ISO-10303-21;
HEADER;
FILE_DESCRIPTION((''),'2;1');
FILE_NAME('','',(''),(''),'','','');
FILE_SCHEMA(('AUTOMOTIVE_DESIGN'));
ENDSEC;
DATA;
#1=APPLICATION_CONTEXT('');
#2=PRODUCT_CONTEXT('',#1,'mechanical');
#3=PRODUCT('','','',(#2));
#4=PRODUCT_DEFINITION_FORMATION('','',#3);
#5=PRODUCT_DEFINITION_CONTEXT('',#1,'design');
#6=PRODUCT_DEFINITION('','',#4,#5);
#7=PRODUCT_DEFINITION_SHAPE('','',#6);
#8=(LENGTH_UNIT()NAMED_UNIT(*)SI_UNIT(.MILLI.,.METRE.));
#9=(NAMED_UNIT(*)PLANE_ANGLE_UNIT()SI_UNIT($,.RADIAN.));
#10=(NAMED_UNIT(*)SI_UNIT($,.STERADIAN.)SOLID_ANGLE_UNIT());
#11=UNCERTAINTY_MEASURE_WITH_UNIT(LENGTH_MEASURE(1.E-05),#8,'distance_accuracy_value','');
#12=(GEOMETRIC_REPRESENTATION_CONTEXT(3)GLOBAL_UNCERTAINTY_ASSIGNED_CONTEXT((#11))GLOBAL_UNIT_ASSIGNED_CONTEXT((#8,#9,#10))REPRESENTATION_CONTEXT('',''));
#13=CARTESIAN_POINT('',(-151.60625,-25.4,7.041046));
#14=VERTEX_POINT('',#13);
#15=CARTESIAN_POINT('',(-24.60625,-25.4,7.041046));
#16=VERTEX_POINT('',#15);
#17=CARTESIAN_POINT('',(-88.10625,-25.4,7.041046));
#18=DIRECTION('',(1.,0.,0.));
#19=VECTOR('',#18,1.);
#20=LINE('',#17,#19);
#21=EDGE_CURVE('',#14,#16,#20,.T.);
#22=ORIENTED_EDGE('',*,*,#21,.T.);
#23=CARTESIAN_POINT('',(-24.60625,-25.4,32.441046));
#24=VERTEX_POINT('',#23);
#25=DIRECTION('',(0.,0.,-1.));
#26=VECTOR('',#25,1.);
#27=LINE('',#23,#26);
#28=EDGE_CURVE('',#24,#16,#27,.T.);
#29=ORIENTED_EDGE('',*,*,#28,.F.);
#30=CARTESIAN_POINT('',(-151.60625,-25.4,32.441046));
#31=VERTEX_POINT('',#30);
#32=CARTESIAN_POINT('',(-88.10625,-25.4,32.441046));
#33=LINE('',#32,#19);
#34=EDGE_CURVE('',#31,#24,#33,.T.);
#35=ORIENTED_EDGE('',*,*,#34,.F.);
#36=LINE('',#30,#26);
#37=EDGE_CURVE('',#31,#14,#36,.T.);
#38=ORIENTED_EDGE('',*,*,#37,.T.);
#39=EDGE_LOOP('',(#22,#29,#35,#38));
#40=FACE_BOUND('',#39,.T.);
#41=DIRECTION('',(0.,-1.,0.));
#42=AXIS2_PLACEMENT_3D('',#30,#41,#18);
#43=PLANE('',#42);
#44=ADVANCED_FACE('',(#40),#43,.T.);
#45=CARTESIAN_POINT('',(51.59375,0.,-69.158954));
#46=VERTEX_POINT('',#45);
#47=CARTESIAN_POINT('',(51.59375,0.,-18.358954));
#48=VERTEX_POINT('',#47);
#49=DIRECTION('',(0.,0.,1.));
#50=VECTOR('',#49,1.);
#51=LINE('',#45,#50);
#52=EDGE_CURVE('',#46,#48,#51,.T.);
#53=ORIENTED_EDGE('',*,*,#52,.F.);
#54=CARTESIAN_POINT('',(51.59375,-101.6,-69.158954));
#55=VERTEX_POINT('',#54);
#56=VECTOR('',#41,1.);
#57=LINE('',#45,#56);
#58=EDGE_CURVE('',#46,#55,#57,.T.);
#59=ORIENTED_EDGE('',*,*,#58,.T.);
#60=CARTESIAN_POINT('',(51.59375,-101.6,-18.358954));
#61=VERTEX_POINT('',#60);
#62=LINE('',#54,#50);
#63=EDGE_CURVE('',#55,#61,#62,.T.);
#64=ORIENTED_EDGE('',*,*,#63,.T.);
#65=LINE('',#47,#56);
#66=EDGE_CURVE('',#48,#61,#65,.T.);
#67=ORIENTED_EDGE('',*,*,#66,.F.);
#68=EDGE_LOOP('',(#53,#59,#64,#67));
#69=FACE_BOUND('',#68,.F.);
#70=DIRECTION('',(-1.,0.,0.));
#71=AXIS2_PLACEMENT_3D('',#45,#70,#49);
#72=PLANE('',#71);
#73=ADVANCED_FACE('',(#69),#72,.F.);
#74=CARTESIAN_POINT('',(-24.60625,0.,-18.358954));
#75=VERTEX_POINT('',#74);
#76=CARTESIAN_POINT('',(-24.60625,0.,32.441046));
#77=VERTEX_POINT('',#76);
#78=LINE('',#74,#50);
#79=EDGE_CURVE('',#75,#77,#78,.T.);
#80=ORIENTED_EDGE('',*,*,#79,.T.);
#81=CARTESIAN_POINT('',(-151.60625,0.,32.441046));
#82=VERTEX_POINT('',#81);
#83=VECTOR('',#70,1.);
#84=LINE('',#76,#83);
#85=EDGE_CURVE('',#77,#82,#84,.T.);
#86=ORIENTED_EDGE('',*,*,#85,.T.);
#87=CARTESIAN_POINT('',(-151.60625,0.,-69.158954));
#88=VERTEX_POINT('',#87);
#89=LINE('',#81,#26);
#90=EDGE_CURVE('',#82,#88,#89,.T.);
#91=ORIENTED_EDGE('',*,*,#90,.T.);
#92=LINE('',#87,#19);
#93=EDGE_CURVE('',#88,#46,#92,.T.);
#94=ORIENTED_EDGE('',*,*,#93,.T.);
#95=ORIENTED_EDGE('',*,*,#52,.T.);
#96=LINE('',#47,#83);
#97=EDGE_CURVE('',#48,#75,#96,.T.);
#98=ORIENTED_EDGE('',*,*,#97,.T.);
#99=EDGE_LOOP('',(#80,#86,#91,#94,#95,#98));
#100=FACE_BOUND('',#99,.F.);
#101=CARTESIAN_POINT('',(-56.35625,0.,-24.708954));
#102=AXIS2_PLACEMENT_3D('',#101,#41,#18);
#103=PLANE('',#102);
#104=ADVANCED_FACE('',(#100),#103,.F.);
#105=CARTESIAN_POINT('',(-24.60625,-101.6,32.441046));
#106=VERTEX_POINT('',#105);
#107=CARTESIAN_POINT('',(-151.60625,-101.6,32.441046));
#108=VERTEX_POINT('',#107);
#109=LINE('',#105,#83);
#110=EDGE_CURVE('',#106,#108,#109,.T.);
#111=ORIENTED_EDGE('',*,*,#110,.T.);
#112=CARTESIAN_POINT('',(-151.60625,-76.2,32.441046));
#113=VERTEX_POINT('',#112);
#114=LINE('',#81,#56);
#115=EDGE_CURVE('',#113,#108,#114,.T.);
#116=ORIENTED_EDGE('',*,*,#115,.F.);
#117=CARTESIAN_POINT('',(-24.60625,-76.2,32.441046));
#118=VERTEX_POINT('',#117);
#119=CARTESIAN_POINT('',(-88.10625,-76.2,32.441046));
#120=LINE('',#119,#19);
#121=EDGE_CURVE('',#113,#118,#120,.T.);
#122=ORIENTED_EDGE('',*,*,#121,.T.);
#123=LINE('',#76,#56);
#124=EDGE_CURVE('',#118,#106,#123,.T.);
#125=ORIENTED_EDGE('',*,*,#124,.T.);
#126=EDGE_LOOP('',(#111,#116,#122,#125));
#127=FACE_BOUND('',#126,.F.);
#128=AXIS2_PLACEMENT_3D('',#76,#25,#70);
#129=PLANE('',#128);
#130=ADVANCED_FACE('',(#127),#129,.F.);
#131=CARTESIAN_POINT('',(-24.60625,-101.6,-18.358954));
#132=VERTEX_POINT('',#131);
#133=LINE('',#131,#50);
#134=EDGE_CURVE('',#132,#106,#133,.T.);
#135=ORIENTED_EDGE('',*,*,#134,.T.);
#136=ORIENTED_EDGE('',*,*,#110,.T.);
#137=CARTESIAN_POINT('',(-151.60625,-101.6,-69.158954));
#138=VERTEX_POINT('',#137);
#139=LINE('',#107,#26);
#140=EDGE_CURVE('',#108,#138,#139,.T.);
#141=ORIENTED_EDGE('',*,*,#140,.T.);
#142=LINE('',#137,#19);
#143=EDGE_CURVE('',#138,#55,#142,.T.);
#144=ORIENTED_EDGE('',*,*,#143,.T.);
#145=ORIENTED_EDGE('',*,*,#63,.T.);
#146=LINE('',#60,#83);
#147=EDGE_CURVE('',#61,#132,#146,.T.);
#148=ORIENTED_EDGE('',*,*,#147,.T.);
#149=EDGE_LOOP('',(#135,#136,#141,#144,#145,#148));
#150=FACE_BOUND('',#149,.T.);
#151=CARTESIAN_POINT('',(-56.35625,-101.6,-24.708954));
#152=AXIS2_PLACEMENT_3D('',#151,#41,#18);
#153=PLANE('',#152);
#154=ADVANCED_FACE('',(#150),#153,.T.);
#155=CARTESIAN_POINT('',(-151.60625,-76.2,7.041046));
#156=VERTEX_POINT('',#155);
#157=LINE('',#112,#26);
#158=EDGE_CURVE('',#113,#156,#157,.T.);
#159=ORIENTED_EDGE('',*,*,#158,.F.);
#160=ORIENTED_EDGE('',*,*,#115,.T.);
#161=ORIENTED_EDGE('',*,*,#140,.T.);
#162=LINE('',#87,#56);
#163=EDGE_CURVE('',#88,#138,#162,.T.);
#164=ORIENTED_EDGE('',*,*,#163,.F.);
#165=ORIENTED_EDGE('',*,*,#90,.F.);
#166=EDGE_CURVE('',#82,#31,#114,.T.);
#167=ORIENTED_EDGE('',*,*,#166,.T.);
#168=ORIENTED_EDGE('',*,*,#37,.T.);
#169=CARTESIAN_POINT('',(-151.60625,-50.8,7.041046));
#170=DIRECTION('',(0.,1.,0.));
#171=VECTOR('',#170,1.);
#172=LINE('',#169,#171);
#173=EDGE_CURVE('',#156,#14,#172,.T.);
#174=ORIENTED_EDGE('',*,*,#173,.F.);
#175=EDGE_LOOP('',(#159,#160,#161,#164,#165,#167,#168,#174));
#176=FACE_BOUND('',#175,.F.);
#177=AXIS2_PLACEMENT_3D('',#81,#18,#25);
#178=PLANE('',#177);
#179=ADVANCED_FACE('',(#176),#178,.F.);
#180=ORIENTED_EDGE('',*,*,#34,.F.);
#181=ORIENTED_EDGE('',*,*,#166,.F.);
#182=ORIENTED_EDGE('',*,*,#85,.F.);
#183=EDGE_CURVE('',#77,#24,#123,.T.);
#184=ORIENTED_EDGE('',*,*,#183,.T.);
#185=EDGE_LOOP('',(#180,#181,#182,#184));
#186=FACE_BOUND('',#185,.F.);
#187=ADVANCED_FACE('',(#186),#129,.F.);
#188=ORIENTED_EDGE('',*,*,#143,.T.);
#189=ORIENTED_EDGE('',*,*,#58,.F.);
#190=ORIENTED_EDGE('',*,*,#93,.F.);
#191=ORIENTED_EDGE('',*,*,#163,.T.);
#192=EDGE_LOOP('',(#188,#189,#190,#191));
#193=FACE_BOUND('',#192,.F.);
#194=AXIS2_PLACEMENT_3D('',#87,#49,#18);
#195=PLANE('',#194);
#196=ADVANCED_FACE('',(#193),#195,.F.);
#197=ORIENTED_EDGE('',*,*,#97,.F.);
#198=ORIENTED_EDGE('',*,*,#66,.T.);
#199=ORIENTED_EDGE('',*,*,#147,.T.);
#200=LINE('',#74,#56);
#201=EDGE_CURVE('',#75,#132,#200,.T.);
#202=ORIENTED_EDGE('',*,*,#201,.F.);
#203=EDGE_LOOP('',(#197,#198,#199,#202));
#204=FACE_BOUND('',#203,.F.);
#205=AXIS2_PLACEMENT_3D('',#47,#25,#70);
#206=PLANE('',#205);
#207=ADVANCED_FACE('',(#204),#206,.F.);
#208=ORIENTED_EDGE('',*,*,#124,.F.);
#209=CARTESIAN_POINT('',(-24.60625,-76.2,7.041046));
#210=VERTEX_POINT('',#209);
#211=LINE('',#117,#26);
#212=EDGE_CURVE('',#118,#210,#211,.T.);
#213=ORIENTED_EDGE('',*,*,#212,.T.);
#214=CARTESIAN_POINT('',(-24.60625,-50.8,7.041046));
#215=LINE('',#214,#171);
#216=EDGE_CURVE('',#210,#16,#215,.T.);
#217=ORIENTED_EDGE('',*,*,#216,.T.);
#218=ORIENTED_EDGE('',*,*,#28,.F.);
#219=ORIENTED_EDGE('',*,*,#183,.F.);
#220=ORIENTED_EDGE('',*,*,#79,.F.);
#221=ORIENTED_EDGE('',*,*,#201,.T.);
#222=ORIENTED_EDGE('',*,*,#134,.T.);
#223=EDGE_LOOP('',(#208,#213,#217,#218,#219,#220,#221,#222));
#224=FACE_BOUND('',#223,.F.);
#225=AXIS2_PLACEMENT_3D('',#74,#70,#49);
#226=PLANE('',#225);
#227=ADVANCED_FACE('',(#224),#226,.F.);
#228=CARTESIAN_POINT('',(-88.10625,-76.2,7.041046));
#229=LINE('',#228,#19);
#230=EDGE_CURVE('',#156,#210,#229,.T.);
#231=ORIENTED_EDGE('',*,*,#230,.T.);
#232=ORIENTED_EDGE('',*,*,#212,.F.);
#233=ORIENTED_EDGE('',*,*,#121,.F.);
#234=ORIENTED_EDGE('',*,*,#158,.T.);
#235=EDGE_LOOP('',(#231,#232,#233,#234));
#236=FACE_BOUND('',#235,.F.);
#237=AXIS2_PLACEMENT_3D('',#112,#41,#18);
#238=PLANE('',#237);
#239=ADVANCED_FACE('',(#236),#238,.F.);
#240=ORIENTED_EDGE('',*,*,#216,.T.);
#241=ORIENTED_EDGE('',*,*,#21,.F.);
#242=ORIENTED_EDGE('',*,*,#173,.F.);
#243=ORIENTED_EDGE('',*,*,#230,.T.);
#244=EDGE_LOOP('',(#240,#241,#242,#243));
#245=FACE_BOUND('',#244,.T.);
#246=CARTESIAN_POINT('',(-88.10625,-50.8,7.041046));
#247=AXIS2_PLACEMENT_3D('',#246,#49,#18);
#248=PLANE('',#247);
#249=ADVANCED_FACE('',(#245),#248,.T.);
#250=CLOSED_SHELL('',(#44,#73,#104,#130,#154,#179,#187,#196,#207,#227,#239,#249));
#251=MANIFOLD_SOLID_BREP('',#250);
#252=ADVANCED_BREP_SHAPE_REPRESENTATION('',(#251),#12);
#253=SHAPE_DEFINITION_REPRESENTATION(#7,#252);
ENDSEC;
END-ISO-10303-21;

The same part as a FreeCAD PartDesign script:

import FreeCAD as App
import Part
import Sketcher
Q = App.Units.Quantity


def add_polygon(sketch, points):
    """Adds a closed chain of lines whose ends are joined by coincident constraints."""
    first, n = sketch.GeometryCount, len(points)
    for a, b in zip(points, points[1:] + points[:1]):
        sketch.addGeometry(Part.LineSegment(App.Vector(*a, 0), App.Vector(*b, 0)), False)
    for i in range(n):
        sketch.addConstraint(Sketcher.Constraint("Coincident", first + i, 2, first + (i + 1) % n, 1))

doc = App.newDocument("Part")
body = doc.addObject("PartDesign::Body", "Body")

sketch1 = body.newObject("Sketcher::SketchObject", "Sketch")
sketch1.AttachmentSupport = (doc.getObject("XZ_Plane"), [""])
sketch1.MapMode = "FlatFace"
add_polygon(sketch1, [(-152, 32), (-152, -69), (52, -69), (52, -18), (-25, -18), (-25, 32)])
sketch1.addConstraint([
    Sketcher.Constraint("Vertical", 0),
    Sketcher.Constraint("Horizontal", 1),
    Sketcher.Constraint("Vertical", 2),
    Sketcher.Constraint("Horizontal", 3),
    Sketcher.Constraint("Vertical", 4),
    Sketcher.Constraint("Horizontal", 5),
    Sketcher.Constraint("Equal", 2, 4),
    Sketcher.Constraint("DistanceX", 1, 1, 1, 2, Q("8 in")),
    Sketcher.Constraint("DistanceX", 3, 2, 3, 1, Q("3 in")),
    Sketcher.Constraint("DistanceY", 0, 2, 0, 1, Q("4 in")),
    Sketcher.Constraint("DistanceX", 0, 2, -1, 1, Q("5.96875 in")),
    Sketcher.Constraint("DistanceY", 0, 2, -1, 1, 69.158954),
])
pad1 = body.newObject("PartDesign::Pad", "Pad")
pad1.Profile = sketch1
pad1.Length = Q("4 in")

sketch2 = body.newObject("Sketcher::SketchObject", "Sketch001")
sketch2.AttachmentSupport = (doc.getObject("XY_Plane"), [""])
sketch2.MapMode = "FlatFace"
sketch2.AttachmentOffset = App.Placement(App.Vector(0, 0, 32.441046), App.Rotation())
add_polygon(sketch2, [(-152, -25), (-152, -76), (-25, -76), (-25, -25)])
sketch2.addConstraint([
    Sketcher.Constraint("Vertical", 0),
    Sketcher.Constraint("Horizontal", 1),
    Sketcher.Constraint("Vertical", 2),
    Sketcher.Constraint("Horizontal", 3),
    Sketcher.Constraint("DistanceX", 1, 1, 1, 2, Q("5 in")),
    Sketcher.Constraint("DistanceY", 0, 2, 0, 1, Q("2 in")),
    Sketcher.Constraint("DistanceY", 0, 2, -1, 1, Q("3 in")),
    Sketcher.Constraint("DistanceX", 0, 2, -1, 1, Q("5.96875 in")),
])
pocket1 = body.newObject("PartDesign::Pocket", "Pocket")
pocket1.Profile = sketch2
pocket1.Length = Q("1 in")

doc.recompute()
